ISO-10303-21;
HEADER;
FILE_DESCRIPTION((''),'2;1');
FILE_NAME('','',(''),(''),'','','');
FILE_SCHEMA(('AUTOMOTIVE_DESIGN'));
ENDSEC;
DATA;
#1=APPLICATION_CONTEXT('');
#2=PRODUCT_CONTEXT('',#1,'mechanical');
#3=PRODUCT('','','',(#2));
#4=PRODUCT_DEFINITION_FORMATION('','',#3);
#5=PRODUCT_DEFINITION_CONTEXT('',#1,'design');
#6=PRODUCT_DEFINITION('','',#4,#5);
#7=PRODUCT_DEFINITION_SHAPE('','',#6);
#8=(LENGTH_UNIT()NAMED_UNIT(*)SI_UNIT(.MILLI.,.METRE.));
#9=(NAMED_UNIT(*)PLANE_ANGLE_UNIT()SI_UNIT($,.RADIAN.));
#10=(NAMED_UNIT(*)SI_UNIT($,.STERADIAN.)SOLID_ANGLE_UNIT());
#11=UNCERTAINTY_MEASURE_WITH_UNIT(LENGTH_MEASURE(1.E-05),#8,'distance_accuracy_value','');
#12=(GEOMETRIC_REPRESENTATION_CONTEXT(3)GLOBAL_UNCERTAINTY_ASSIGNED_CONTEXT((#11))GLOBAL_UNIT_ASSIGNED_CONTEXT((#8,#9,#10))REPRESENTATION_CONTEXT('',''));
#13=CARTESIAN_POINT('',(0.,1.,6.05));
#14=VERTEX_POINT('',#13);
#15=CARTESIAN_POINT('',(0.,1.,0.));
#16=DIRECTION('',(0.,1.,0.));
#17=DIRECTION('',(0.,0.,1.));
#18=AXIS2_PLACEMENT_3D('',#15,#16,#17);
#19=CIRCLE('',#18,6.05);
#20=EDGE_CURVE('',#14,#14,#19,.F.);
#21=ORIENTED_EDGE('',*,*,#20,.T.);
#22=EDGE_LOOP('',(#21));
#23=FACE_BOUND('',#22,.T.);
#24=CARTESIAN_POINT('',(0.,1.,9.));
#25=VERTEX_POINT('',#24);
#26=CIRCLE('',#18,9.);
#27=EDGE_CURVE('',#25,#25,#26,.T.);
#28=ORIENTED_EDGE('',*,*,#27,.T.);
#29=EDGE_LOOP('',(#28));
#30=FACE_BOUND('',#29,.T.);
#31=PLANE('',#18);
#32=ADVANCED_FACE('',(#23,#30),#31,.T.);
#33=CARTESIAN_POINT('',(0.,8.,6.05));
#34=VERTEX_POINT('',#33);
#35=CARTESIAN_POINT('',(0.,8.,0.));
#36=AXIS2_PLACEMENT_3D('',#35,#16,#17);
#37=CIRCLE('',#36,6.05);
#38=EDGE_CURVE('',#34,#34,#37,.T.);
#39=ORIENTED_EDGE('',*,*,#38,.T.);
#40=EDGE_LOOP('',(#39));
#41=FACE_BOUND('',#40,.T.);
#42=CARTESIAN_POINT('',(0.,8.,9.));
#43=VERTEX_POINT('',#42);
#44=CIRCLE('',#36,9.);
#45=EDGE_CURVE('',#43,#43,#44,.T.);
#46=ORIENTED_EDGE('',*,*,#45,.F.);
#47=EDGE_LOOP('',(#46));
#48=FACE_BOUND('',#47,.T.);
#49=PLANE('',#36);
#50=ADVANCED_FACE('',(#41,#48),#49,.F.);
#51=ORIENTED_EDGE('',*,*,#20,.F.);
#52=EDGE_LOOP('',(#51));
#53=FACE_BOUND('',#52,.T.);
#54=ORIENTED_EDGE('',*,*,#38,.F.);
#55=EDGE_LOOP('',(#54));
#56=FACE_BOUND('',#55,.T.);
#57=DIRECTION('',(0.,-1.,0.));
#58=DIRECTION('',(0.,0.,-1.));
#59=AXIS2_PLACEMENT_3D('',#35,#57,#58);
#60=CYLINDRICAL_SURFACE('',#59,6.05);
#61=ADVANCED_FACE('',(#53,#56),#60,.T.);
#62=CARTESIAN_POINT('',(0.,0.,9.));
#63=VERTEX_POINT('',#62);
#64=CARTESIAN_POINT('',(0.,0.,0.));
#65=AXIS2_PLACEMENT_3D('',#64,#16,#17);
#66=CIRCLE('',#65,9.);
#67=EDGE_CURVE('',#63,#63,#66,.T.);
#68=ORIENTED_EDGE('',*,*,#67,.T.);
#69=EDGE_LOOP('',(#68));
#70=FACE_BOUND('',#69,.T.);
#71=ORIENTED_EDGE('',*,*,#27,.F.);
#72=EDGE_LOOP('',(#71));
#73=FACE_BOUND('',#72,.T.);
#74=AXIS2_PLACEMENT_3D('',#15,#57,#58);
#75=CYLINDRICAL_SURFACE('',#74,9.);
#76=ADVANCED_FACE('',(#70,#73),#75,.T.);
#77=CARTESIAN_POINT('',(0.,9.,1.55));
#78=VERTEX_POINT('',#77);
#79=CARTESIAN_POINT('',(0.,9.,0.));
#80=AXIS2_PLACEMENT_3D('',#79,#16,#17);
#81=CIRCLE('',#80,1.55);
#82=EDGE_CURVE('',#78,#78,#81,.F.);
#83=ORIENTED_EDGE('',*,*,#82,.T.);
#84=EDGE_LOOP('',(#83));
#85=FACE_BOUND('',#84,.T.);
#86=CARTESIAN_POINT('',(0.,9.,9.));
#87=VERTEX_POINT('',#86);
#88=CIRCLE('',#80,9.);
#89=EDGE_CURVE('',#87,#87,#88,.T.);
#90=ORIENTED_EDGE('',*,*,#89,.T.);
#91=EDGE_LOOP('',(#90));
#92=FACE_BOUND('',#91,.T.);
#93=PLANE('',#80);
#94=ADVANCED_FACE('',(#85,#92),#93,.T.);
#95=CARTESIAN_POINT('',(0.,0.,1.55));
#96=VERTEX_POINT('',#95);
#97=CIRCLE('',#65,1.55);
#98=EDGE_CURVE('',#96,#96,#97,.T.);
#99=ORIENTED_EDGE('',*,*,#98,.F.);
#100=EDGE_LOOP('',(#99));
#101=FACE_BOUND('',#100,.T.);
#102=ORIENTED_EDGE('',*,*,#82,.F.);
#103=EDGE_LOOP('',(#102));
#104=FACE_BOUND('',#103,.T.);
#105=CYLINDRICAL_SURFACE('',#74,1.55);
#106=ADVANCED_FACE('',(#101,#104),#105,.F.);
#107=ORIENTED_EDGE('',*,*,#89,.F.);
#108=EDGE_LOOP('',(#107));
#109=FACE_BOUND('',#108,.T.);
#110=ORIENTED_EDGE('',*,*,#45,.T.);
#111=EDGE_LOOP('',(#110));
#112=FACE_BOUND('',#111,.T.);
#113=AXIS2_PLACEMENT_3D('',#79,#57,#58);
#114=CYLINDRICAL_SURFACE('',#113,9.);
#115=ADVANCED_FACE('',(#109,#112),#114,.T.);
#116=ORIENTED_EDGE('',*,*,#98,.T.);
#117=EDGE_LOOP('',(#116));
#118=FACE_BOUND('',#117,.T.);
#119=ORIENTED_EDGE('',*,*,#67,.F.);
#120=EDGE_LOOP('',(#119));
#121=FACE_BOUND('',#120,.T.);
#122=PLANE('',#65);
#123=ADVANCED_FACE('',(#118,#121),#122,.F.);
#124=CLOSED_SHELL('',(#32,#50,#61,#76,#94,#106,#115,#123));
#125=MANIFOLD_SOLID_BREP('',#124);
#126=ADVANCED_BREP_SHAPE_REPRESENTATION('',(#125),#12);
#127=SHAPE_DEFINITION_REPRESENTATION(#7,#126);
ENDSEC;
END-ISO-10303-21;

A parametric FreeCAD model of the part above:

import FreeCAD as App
import Part
import Sketcher

doc = App.newDocument("Part")
params = doc.addObject("Spreadsheet::Sheet", "Params")
for row, (alias, value) in enumerate([
    ("sketch1_diameter", "18 mm"),
    ("sketch1_diameter2", "12.1 mm"),
    ("pad1_length", "1 mm"),
    ("sketch2_diameter", "12.1 mm"),
    ("sketch2_diameter2", "3.1 mm"),
    ("pad2_length", "8 mm"),
    ("sketch3_diameter", "18 mm"),
    ("sketch3_diameter2", "3.1 mm"),
    ("pad3_length", "1 mm"),
], start=1):
    params.set(f"A{row}", alias)
    params.set(f"B{row}", "=" + value)
    params.setAlias(f"B{row}", alias)

body = doc.addObject("PartDesign::Body", "Body")

# Sketch on XZ plane
sketch1 = body.newObject("Sketcher::SketchObject", "Sketch")
sketch1.AttachmentSupport = (doc.getObject("XZ_Plane"), [""])
sketch1.MapMode = "FlatFace"
sketch1.addGeometry(Part.Circle(App.Vector(0, 0, 0), App.Vector(0, 0, 1), 9), False)
sketch1.addGeometry(Part.Circle(App.Vector(0, 0, 0), App.Vector(0, 0, 1), 6), False)
sketch1.addConstraint(Sketcher.Constraint("Coincident", 0, 3, -1, 1))
sketch1.addConstraint(Sketcher.Constraint("Coincident", 1, 3, -1, 1))
sketch1.addConstraint(Sketcher.Constraint("Diameter", 0, 18.0))
sketch1.addConstraint(Sketcher.Constraint("Diameter", 1, 12.1))
sketch1.setExpression("Constraints[2]", "Params.sketch1_diameter")
sketch1.setExpression("Constraints[3]", "Params.sketch1_diameter2")
pad1 = body.newObject("PartDesign::Pad", "Pad")
pad1.Profile = sketch1
pad1.setExpression("Length", "Params.pad1_length")
pad1.Reversed = True

# Sketch on XZ plane
sketch2 = body.newObject("Sketcher::SketchObject", "Sketch001")
sketch2.AttachmentSupport = (doc.getObject("XZ_Plane"), [""])
sketch2.MapMode = "FlatFace"
sketch2.addGeometry(Part.Circle(App.Vector(0, 0, 0), App.Vector(0, 0, 1), 6), False)
sketch2.addGeometry(Part.Circle(App.Vector(0, 0, 0), App.Vector(0, 0, 1), 1.6), False)
sketch2.addConstraint(Sketcher.Constraint("Coincident", 0, 3, -1, 1))
sketch2.addConstraint(Sketcher.Constraint("Coincident", 1, 3, -1, 1))
sketch2.addConstraint(Sketcher.Constraint("Diameter", 0, 12.1))
sketch2.addConstraint(Sketcher.Constraint("Diameter", 1, 3.1))
sketch2.setExpression("Constraints[2]", "Params.sketch2_diameter")
sketch2.setExpression("Constraints[3]", "Params.sketch2_diameter2")
pad2 = body.newObject("PartDesign::Pad", "Pad001")
pad2.Profile = sketch2
pad2.setExpression("Length", "Params.pad2_length")
pad2.Reversed = True

# Sketch on XZ plane
sketch3 = body.newObject("Sketcher::SketchObject", "Sketch002")
sketch3.AttachmentSupport = (doc.getObject("XZ_Plane"), [""])
sketch3.MapMode = "FlatFace"
sketch3.AttachmentOffset = App.Placement(App.Vector(0, 0, -8), App.Rotation())
sketch3.addGeometry(Part.Circle(App.Vector(0, 0, 0), App.Vector(0, 0, 1), 9), False)
sketch3.addGeometry(Part.Circle(App.Vector(0, 0, 0), App.Vector(0, 0, 1), 1.6), False)
sketch3.addConstraint(Sketcher.Constraint("Coincident", 0, 3, -1, 1))
sketch3.addConstraint(Sketcher.Constraint("Coincident", 1, 3, -1, 1))
sketch3.addConstraint(Sketcher.Constraint("Diameter", 0, 18.0))
sketch3.addConstraint(Sketcher.Constraint("Diameter", 1, 3.1))
sketch3.setExpression("Constraints[2]", "Params.sketch3_diameter")
sketch3.setExpression("Constraints[3]", "Params.sketch3_diameter2")
pad3 = body.newObject("PartDesign::Pad", "Pad002")
pad3.Profile = sketch3
pad3.setExpression("Length", "Params.pad3_length")
pad3.Reversed = True

doc.recompute()
